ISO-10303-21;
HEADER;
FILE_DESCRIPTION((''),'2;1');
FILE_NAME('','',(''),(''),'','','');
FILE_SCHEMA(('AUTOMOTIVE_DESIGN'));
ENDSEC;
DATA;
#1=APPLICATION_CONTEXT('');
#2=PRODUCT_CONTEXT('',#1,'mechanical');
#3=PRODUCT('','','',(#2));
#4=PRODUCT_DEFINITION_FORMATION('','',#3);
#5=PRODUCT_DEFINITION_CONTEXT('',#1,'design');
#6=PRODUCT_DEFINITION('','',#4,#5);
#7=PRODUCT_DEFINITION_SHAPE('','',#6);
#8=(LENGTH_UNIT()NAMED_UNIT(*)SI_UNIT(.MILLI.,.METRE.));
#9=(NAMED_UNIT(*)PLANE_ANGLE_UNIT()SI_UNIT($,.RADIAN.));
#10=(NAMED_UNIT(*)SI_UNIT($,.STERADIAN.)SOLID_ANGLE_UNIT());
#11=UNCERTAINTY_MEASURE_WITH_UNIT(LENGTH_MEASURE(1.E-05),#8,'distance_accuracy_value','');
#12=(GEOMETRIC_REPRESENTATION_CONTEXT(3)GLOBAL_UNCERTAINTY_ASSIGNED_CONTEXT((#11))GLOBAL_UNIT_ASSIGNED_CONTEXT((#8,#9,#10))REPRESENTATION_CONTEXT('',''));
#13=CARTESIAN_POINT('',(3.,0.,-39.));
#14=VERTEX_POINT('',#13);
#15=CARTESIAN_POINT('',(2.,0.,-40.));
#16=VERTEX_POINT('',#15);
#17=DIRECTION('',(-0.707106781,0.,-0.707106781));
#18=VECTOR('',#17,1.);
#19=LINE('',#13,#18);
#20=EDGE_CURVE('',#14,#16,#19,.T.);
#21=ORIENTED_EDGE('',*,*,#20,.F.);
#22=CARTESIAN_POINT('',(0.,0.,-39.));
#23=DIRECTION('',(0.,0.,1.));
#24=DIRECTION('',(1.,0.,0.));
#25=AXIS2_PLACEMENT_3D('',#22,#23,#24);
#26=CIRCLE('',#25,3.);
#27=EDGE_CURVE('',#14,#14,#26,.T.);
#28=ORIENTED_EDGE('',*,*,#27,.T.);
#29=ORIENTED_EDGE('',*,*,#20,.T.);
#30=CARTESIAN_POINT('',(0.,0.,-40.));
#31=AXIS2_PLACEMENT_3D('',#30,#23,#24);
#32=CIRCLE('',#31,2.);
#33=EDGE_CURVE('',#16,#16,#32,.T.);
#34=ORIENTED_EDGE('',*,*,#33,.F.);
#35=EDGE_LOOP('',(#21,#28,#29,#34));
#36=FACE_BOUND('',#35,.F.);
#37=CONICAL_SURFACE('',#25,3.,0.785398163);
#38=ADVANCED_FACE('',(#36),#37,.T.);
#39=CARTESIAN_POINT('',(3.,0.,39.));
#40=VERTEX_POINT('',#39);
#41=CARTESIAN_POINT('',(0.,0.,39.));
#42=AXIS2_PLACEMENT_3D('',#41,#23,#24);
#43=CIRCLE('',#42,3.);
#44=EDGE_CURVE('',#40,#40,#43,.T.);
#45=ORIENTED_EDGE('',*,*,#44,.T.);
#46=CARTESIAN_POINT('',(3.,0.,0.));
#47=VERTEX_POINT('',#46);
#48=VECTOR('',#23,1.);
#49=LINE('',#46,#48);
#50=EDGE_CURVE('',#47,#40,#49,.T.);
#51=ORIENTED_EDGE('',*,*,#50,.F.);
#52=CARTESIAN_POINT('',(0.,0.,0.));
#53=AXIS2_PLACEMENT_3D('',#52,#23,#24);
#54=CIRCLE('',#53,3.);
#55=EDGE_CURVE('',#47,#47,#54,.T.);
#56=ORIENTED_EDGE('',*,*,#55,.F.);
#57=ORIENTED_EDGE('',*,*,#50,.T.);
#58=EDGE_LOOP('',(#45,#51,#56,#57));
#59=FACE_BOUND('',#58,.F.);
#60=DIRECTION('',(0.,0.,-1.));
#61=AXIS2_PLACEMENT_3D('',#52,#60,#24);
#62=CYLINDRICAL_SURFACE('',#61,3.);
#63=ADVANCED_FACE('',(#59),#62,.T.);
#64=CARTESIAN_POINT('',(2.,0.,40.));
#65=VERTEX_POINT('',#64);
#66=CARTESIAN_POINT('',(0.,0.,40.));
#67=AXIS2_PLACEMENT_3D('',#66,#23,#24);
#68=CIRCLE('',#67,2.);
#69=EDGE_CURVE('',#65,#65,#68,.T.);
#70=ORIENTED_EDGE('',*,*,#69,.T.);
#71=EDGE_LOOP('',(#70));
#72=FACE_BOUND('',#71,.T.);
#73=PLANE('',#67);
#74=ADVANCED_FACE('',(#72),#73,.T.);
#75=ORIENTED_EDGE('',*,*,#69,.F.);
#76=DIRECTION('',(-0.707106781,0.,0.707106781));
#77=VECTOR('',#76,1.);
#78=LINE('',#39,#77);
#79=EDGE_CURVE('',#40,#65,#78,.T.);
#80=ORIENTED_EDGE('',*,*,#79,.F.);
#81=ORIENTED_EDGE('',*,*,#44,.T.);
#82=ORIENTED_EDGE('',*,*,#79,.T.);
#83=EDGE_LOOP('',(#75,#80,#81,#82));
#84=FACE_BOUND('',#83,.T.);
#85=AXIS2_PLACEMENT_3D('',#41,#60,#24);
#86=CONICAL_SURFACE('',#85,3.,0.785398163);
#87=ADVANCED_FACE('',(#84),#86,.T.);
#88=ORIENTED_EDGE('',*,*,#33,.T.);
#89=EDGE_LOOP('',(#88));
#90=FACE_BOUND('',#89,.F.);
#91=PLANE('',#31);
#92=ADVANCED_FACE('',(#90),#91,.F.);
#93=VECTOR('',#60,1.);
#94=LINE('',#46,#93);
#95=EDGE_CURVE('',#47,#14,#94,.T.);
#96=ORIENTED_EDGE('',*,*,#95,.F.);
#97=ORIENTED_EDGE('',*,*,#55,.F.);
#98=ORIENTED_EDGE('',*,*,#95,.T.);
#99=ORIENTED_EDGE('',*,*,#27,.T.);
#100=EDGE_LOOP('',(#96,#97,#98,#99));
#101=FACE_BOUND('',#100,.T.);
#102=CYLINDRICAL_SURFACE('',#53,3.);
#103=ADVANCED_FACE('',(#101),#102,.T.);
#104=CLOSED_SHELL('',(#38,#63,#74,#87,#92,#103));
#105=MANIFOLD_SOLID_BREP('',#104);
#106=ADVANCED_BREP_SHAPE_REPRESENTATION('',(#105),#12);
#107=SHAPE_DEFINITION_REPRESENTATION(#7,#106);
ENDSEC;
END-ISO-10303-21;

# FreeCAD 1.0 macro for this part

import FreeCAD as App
import Part
import Sketcher

V = App.Vector
Q = App.Units.Quantity


def edges_at(feature, points):
    """Names of the edges that pass closest to the given points."""
    edges = feature.Shape.Edges
    near = lambda p: min(range(len(edges)), key=lambda i: edges[i].distToShape(Part.Vertex(*p))[0])
    return sorted({f"Edge{near(p) + 1}" for p in points})

doc = App.newDocument("Part")
body = doc.addObject("PartDesign::Body", "Body")

sketch1 = body.newObject("Sketcher::SketchObject", "Sketch")
sketch1.AttachmentSupport = (doc.getObject("XY_Plane"), [""])
sketch1.MapMode = "FlatFace"
sketch1.addGeometry(Part.Circle(V(0, 0, 0), V(0, 0, 1), 3), False)
sketch1.addConstraint([
    Sketcher.Constraint("Coincident", 0, 3, -1, 1),
    Sketcher.Constraint("Diameter", 0, Q("6 mm")),
])
pad1 = body.newObject("PartDesign::Pad", "Pad")
pad1.Profile = sketch1
pad1.Length = 80
pad1.Midplane = True
doc.recompute()

chamfer = body.newObject("PartDesign::Chamfer", "Chamfer")
chamfer.Base = (pad1, edges_at(pad1, [(-3, 0, -40), (-3, 0, 40)]))
chamfer.Size = 1

doc.recompute()
